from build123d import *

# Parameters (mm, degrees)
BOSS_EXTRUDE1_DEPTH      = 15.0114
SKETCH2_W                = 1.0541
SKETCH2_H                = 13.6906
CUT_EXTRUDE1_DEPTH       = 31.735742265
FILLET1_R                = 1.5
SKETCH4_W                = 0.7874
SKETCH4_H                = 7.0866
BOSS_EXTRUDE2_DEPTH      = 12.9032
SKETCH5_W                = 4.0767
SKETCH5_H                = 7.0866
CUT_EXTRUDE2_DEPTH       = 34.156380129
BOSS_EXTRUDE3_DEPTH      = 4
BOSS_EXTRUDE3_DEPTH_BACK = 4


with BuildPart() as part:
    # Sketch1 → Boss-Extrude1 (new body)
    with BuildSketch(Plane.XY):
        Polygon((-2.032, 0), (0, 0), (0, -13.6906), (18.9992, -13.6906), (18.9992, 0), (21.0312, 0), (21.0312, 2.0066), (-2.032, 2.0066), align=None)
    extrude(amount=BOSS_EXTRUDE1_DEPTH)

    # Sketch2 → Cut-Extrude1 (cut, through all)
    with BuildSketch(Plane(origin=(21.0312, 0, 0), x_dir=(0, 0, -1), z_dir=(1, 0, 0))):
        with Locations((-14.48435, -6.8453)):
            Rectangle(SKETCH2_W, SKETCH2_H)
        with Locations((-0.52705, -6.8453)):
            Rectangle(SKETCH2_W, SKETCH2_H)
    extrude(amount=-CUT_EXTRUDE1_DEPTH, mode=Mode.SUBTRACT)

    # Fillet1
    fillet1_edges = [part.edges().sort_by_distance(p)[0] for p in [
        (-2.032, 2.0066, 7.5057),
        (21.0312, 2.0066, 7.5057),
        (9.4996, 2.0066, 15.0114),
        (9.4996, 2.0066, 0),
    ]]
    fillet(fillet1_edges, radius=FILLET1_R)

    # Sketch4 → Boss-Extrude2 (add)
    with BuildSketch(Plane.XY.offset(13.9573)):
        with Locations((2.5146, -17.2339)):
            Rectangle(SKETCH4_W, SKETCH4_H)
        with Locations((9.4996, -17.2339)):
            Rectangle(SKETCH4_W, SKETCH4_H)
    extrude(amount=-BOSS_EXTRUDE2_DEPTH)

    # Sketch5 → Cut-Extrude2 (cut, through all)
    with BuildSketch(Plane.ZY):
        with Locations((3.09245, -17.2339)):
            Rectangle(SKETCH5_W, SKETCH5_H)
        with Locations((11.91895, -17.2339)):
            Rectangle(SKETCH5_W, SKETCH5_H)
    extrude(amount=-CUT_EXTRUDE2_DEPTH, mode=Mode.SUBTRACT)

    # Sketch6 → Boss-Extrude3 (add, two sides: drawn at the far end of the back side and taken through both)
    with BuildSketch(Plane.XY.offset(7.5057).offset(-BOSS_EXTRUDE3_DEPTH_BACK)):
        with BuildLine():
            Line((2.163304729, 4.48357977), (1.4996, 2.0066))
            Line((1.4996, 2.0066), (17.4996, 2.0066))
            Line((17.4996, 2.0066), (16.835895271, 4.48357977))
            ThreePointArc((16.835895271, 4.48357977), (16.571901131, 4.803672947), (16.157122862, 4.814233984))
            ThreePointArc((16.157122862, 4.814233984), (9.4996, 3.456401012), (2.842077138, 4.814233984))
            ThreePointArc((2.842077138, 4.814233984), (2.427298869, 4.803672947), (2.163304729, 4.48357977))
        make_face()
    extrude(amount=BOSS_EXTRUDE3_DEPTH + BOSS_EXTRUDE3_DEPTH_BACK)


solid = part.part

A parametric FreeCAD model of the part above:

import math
import FreeCAD as App
import Part
import Sketcher

V = App.Vector
Q = App.Units.Quantity


def edges_at(feature, points):
    """Names of the edges that pass closest to the given points."""
    edges = feature.Shape.Edges
    near = lambda p: min(range(len(edges)), key=lambda i: edges[i].distToShape(Part.Vertex(*p))[0])
    return sorted({f"Edge{near(p) + 1}" for p in points})


def add_polygon(sketch, points):
    """Adds a closed chain of lines whose ends are joined by coincident constraints."""
    first, n = sketch.GeometryCount, len(points)
    for a, b in zip(points, points[1:] + points[:1]):
        sketch.addGeometry(Part.LineSegment(App.Vector(*a, 0), App.Vector(*b, 0)), False)
    for i in range(n):
        sketch.addConstraint(Sketcher.Constraint("Coincident", first + i, 2, first + (i + 1) % n, 1))

doc = App.newDocument("Part")
body = doc.addObject("PartDesign::Body", "Body")

# Sketch on XY plane
sketch1 = body.newObject("Sketcher::SketchObject", "Sketch")
sketch1.AttachmentSupport = (doc.getObject("XY_Plane"), [""])
sketch1.MapMode = "FlatFace"
add_polygon(sketch1, [(-2, 0), (0, 0), (0, -13.7), (19, -13.7), (19, 0), (21, 0), (21, 2), (-2, 2)])  # lines 0-7
sketch1.addConstraint([
    Sketcher.Constraint("Horizontal", 0),
    Sketcher.Constraint("Vertical", 1),
    Sketcher.Constraint("Horizontal", 2),
    Sketcher.Constraint("Vertical", 3),
    Sketcher.Constraint("Horizontal", 4),
    Sketcher.Constraint("Vertical", 5),
    Sketcher.Constraint("Horizontal", 6),
    Sketcher.Constraint("Vertical", 7),
    Sketcher.Constraint("Coincident", 0, 2, -1, 1),
    Sketcher.Constraint("PointOnObject", 3, 2, -1),
    Sketcher.Constraint("Equal", 0, 4),
    Sketcher.Constraint("DistanceX", 0, 1, 0, 2, Q("0.08 in")),
    Sketcher.Constraint("DistanceX", 2, 1, 2, 2, Q("0.748 in")),
    Sketcher.Constraint("DistanceY", 1, 2, 1, 1, Q("0.539 in")),
    Sketcher.Constraint("DistanceY", 5, 1, 5, 2, Q("0.079 in")),
])
pad1 = body.newObject("PartDesign::Pad", "Pad")
pad1.Profile = sketch1
pad1.Length = Q("0.591 in")

# Sketch on YZ plane
sketch2 = body.newObject("Sketcher::SketchObject", "Sketch001")
sketch2.AttachmentSupport = (doc.getObject("YZ_Plane"), [""])
sketch2.MapMode = "FlatFace"
sketch2.AttachmentOffset = App.Placement(V(0, 0, 0.828 * 25.4), App.Rotation())
add_polygon(sketch2, [(0, 15), (-13.7, 15), (-13.7, 14), (0, 14)])  # lines 0-3
add_polygon(sketch2, [(0, 1.1), (-13.7, 1.1), (-13.7, 0), (0, 0)])  # lines 4-7
sketch2.addConstraint([
    Sketcher.Constraint("Horizontal", 0),
    Sketcher.Constraint("Vertical", 1),
    Sketcher.Constraint("Horizontal", 2),
    Sketcher.Constraint("Vertical", 3),
    Sketcher.Constraint("Horizontal", 4),
    Sketcher.Constraint("Vertical", 5),
    Sketcher.Constraint("Horizontal", 6),
    Sketcher.Constraint("Vertical", 7),
    Sketcher.Constraint("Coincident", 6, 2, -1, 1),
    Sketcher.Constraint("PointOnObject", 2, 2, -2),
    Sketcher.Constraint("Vertical", 1, 2, 4, 2),
    Sketcher.Constraint("Equal", 3, 5),
    Sketcher.Constraint("DistanceX", 0, 2, 0, 1, Q("0.539 in")),
    Sketcher.Constraint("DistanceY", 1, 2, 1, 1, Q("0.0415 in")),
    Sketcher.Constraint("DistanceY", -1, 1, 0, 2, Q("0.591 in")),
])
pocket1 = body.newObject("PartDesign::Pocket", "Pocket")
pocket1.Profile = sketch2
pocket1.Type = "ThroughAll"
doc.recompute()

fillet = body.newObject("PartDesign::Fillet", "Fillet")
fillet.Base = (pocket1, edges_at(pocket1, [
    (-2.032, 2.007, 7.506),
    (21.031, 2.007, 7.506),
    (9.5, 2.007, 15.011),
    (9.5, 2.007, 0),
]))
fillet.Radius = 1.5

# Sketch on XY plane
sketch3 = body.newObject("Sketcher::SketchObject", "Sketch002")
sketch3.AttachmentSupport = (doc.getObject("XY_Plane"), [""])
sketch3.MapMode = "FlatFace"
sketch3.AttachmentOffset = App.Placement(V(0, 0, 0.5495 * 25.4), App.Rotation())
add_polygon(sketch3, [(2.1, -13.7), (2.1, -20.8), (2.9, -20.8), (2.9, -13.7)])  # lines 0-3
add_polygon(sketch3, [(9.1, -13.7), (9.1, -20.8), (9.9, -20.8), (9.9, -13.7)])  # lines 4-7
sketch3.addConstraint([
    Sketcher.Constraint("Vertical", 0),
    Sketcher.Constraint("Horizontal", 1),
    Sketcher.Constraint("Vertical", 2),
    Sketcher.Constraint("Horizontal", 3),
    Sketcher.Constraint("Vertical", 4),
    Sketcher.Constraint("Horizontal", 5),
    Sketcher.Constraint("Vertical", 6),
    Sketcher.Constraint("Horizontal", 7),
    Sketcher.Constraint("Horizontal", 1, 2, 4, 2),
    Sketcher.Constraint("Horizontal", 3, 2, 6, 2),
    Sketcher.Constraint("Equal", 3, 5),
    Sketcher.Constraint("DistanceX", 1, 1, 1, 2, Q("0.031 in")),
    Sketcher.Constraint("DistanceY", 0, 2, 0, 1, Q("0.279 in")),
    Sketcher.Constraint("DistanceY", 0, 2, -1, 1, Q("0.818 in")),
    Sketcher.Constraint("DistanceX", 1, 2, 4, 2, Q("0.244 in")),
    Sketcher.Constraint("DistanceX", -1, 1, 0, 2, Q("0.0835 in")),
])
pad2 = body.newObject("PartDesign::Pad", "Pad001")
pad2.Profile = sketch3
pad2.Length = Q("0.508 in")
pad2.Reversed = True

# Sketch on YZ plane
sketch4 = body.newObject("Sketcher::SketchObject", "Sketch003")
sketch4.AttachmentSupport = (doc.getObject("YZ_Plane"), [""])
sketch4.MapMode = "FlatFace"
add_polygon(sketch4, [(-13.7, 1.1), (-20.8, 1.1), (-20.8, 5.1), (-13.7, 5.1)])  # lines 0-3
add_polygon(sketch4, [(-13.7, 9.9), (-20.8, 9.9), (-20.8, 14), (-13.7, 14)])  # lines 4-7
sketch4.addConstraint([
    Sketcher.Constraint("Horizontal", 0),
    Sketcher.Constraint("Vertical", 1),
    Sketcher.Constraint("Horizontal", 2),
    Sketcher.Constraint("Vertical", 3),
    Sketcher.Constraint("Horizontal", 4),
    Sketcher.Constraint("Vertical", 5),
    Sketcher.Constraint("Horizontal", 6),
    Sketcher.Constraint("Vertical", 7),
    Sketcher.Constraint("Vertical", 1, 2, 4, 2),
    Sketcher.Constraint("Vertical", 3, 2, 6, 2),
    Sketcher.Constraint("Equal", 3, 5),
    Sketcher.Constraint("DistanceX", 0, 2, 0, 1, Q("0.279 in")),
    Sketcher.Constraint("DistanceY", 1, 1, 1, 2, Q("0.1605 in")),
    Sketcher.Constraint("DistanceX", 0, 2, -1, 1, Q("0.818 in")),
    Sketcher.Constraint("DistanceY", -1, 1, 1, 2, Q("0.202 in")),
    Sketcher.Constraint("DistanceY", -1, 1, 4, 2, Q("0.389 in")),
])
pocket2 = body.newObject("PartDesign::Pocket", "Pocket001")
pocket2.Profile = sketch4
pocket2.Type = "ThroughAll"
pocket2.Reversed = True

# Sketch on XY plane
sketch5 = body.newObject("Sketcher::SketchObject", "Sketch004")
sketch5.AttachmentSupport = (doc.getObject("XY_Plane"), [""])
sketch5.MapMode = "FlatFace"
sketch5.AttachmentOffset = App.Placement(V(0, 0, 0.2955 * 25.4), App.Rotation())
sketch5.addGeometry([
    Part.LineSegment(V(2.2, 4.5, 0), V(1.5, 2, 0)),  # 0
    Part.LineSegment(V(1.5, 2, 0), V(17.5, 2, 0)),  # 1
    Part.LineSegment(V(17.5, 2, 0), V(16.8, 4.5, 0)),  # 2
    Part.ArcOfCircle(Part.Circle(V(16.4, 4.4, 0), V(0, 0, 1), 0.5), math.radians(15), math.radians(113)),  # 3
    Part.ArcOfCircle(Part.Circle(V(9.5, 20.5, 0), V(0, 0, 1), 17), math.radians(-113), math.radians(-67)),  # 4
    Part.ArcOfCircle(Part.Circle(V(2.6, 4.4, 0), V(0, 0, 1), 0.5), math.radians(67), math.radians(165)),  # 5
], False)
sketch5.addConstraint([
    Sketcher.Constraint("Coincident", 0, 2, 1, 1),
    Sketcher.Constraint("Coincident", 1, 2, 2, 1),
    Sketcher.Constraint("Tangent", 2, 2, 3, 1),
    Sketcher.Constraint("Tangent", 3, 2, 4, 2),
    Sketcher.Constraint("Tangent", 4, 1, 5, 1),
    Sketcher.Constraint("Tangent", 5, 2, 0, 1),
    Sketcher.Constraint("Horizontal", 1),
    Sketcher.Constraint("Equal", 3, 5),
    Sketcher.Constraint("Horizontal", 3, 3, 5, 3),
    Sketcher.Constraint("Horizontal", 2, 2, 5, 2),
    Sketcher.Constraint("Angle", 0, Q("-105 deg")),
    Sketcher.Constraint("Radius", 3, 0.5),
    Sketcher.Constraint("Radius", 4, 17.0),
    Sketcher.Constraint("DistanceX", -1, 1, 4, 3, Q("0.374 in")),
    Sketcher.Constraint("DistanceY", -1, 1, 0, 2, Q("0.079 in")),
    Sketcher.Constraint("DistanceX", 1, 1, 1, 2, 16.0),
    Sketcher.Constraint("DistanceY", -1, 1, 4, 3, 20.456401),
])
pad3 = body.newObject("PartDesign::Pad", "Pad002")
pad3.Profile = sketch5
pad3.Type = "TwoLengths"
pad3.Length = 4
pad3.Length2 = 4

doc.recompute()
